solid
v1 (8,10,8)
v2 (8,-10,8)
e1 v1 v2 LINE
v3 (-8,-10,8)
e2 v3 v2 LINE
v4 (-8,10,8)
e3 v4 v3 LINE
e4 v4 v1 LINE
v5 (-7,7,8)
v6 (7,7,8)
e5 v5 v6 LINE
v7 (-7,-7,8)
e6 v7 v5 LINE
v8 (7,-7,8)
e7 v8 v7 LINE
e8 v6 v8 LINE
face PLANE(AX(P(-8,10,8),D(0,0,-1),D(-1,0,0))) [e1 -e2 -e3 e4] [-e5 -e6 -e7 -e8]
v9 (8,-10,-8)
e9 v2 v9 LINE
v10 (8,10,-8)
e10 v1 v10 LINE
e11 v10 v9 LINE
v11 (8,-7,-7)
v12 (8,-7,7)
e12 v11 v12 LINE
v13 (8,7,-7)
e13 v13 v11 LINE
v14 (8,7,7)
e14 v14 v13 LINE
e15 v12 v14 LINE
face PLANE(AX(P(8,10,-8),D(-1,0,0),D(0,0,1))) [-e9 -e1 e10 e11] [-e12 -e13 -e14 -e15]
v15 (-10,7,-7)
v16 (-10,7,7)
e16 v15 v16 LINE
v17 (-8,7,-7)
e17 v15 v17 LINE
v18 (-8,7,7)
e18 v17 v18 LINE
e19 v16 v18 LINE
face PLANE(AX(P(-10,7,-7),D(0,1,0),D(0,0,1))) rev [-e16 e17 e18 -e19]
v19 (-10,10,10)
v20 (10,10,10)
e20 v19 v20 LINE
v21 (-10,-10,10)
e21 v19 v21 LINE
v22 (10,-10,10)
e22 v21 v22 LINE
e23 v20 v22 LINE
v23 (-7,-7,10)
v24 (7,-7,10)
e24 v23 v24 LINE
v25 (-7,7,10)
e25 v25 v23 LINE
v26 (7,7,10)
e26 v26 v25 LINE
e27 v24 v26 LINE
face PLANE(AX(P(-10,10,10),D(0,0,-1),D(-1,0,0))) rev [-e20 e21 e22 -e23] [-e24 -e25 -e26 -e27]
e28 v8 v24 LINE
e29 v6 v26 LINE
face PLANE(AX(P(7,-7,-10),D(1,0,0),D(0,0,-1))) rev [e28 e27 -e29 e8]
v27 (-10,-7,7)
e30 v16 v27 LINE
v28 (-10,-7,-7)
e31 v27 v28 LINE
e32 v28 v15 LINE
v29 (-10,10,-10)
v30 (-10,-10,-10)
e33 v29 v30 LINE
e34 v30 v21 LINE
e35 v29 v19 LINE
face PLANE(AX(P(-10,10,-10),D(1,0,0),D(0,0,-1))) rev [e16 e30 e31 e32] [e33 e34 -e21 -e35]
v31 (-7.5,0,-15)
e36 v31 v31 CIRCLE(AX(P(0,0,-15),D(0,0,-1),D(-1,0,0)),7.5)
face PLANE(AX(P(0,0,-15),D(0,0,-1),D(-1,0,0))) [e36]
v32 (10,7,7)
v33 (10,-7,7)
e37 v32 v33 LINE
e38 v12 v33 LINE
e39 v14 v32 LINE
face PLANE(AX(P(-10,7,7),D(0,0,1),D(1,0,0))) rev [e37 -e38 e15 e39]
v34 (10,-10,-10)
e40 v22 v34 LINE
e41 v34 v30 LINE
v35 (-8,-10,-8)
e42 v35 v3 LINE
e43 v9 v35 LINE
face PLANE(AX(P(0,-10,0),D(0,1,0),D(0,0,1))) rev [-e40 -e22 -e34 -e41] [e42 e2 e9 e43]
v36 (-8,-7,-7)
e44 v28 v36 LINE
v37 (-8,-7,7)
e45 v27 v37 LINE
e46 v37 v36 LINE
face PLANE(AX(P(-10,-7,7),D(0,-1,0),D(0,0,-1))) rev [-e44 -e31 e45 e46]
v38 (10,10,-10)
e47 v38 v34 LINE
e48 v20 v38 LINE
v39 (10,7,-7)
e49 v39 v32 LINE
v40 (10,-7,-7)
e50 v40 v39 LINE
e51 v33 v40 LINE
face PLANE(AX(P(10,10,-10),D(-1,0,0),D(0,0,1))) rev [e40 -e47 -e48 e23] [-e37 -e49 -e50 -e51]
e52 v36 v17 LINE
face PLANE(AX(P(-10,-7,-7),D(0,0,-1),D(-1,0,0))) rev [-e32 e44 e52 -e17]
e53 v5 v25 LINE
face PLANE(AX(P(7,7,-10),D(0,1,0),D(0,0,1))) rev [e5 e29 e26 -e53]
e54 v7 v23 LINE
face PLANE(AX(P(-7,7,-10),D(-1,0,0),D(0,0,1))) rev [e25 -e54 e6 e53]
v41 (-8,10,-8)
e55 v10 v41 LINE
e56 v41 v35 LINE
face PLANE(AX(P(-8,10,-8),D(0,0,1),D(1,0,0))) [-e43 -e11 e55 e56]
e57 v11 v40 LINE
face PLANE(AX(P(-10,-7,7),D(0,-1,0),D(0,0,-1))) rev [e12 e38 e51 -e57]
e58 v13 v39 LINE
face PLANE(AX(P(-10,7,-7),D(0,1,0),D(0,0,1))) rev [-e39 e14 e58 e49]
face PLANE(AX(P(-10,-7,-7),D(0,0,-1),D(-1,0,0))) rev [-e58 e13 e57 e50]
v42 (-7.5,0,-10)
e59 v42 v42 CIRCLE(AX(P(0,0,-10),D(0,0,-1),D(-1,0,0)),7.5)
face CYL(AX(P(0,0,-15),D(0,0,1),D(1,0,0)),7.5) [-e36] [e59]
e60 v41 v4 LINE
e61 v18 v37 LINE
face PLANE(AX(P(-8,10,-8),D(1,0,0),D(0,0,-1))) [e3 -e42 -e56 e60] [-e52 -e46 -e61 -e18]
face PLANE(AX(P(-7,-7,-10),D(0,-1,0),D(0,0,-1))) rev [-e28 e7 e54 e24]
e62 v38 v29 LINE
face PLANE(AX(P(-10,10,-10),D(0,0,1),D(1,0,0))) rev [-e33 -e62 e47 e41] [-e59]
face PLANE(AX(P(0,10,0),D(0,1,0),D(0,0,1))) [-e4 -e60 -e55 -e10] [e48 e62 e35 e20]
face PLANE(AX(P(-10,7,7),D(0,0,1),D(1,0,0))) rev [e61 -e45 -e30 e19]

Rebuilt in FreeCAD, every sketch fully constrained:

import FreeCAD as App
import Part
import Sketcher
from FreeCAD import Vector
Q = App.Units.Quantity


def add_polygon(sketch, points):
    """Adds a closed chain of lines whose ends are joined by coincident constraints."""
    first, n = sketch.GeometryCount, len(points)
    for a, b in zip(points, points[1:] + points[:1]):
        sketch.addGeometry(Part.LineSegment(App.Vector(*a, 0), App.Vector(*b, 0)), False)
    for i in range(n):
        sketch.addConstraint(Sketcher.Constraint("Coincident", first + i, 2, first + (i + 1) % n, 1))

doc = App.newDocument("Part")
params = doc.addObject("Spreadsheet::Sheet", "Params")
for row, (alias, value) in enumerate([
    ("sketch1_width", "20 mm"),
    ("sketch1_width2", "16 mm"),
    ("pad1_length", "20 mm"),
    ("sketch2_width", "14 mm"),
    ("sketch3_width", "14 mm"),
    ("sketch4_width", "14 mm"),
    ("sketch4_height", "2 mm"),
    ("pad2_length", "14 mm"),
    ("sketch5_diameter", "15 mm"),
    ("pad3_length", "5 mm"),
], start=1):
    params.set(f"A{row}", alias)
    params.set(f"B{row}", "=" + value)
    params.setAlias(f"B{row}", alias)

body = doc.addObject("PartDesign::Body", "Body")

# Sketch on XZ plane
sketch1 = body.newObject("Sketcher::SketchObject", "Sketch")
sketch1.AttachmentSupport = (doc.getObject("XZ_Plane"), [""])
sketch1.MapMode = "FlatFace"
add_polygon(sketch1, [(-10, -10), (-10, 10), (10, 10), (10, -10)])  # lines 0-3
add_polygon(sketch1, [(8, 8), (-8, 8), (-8, -8), (8, -8)])  # lines 4-7
sketch1.addConstraint(Sketcher.Constraint("Vertical", 0))
sketch1.addConstraint(Sketcher.Constraint("Horizontal", 1))
sketch1.addConstraint(Sketcher.Constraint("Vertical", 2))
sketch1.addConstraint(Sketcher.Constraint("Horizontal", 3))
sketch1.addConstraint(Sketcher.Constraint("Horizontal", 4))
sketch1.addConstraint(Sketcher.Constraint("Vertical", 5))
sketch1.addConstraint(Sketcher.Constraint("Horizontal", 6))
sketch1.addConstraint(Sketcher.Constraint("Vertical", 7))
sketch1.addConstraint(Sketcher.Constraint("Symmetric", 0, 2, 2, 2, -1, 1))
sketch1.addConstraint(Sketcher.Constraint("Symmetric", 4, 2, 6, 2, -1, 1))
sketch1.addConstraint(Sketcher.Constraint("Equal", 3, 0))
sketch1.addConstraint(Sketcher.Constraint("Equal", 6, 5))
sketch1.addConstraint(Sketcher.Constraint("DistanceX", 1, 1, 1, 2, Q("20 mm")))
sketch1.addConstraint(Sketcher.Constraint("DistanceX", 4, 2, 4, 1, Q("16 mm")))
sketch1.setExpression("Constraints[20]", "Params.sketch1_width")
sketch1.setExpression("Constraints[21]", "Params.sketch1_width2")
pad1 = body.newObject("PartDesign::Pad", "Pad")
pad1.Profile = sketch1
pad1.setExpression("Length", "Params.pad1_length")
pad1.Midplane = True

# Sketch on XY plane
sketch2 = body.newObject("Sketcher::SketchObject", "Sketch001")
sketch2.AttachmentSupport = (doc.getObject("XY_Plane"), [""])
sketch2.MapMode = "FlatFace"
sketch2.AttachmentOffset = App.Placement(Vector(0, 0, 10), App.Rotation())
add_polygon(sketch2, [(-7, 7), (-7, -7), (7, -7), (7, 7)])  # lines 0-3
sketch2.addConstraint(Sketcher.Constraint("Vertical", 0))
sketch2.addConstraint(Sketcher.Constraint("Horizontal", 1))
sketch2.addConstraint(Sketcher.Constraint("Vertical", 2))
sketch2.addConstraint(Sketcher.Constraint("Horizontal", 3))
sketch2.addConstraint(Sketcher.Constraint("Symmetric", 0, 2, 2, 2, -1, 1))
sketch2.addConstraint(Sketcher.Constraint("Equal", 3, 0))
sketch2.addConstraint(Sketcher.Constraint("DistanceX", 1, 1, 1, 2, Q("14 mm")))
sketch2.setExpression("Constraints[10]", "Params.sketch2_width")
pocket1 = body.newObject("PartDesign::Pocket", "Pocket")
pocket1.Profile = sketch2
pocket1.Type = "ThroughAll"

# Sketch on YZ plane
sketch3 = body.newObject("Sketcher::SketchObject", "Sketch002")
sketch3.AttachmentSupport = (doc.getObject("YZ_Plane"), [""])
sketch3.MapMode = "FlatFace"
sketch3.AttachmentOffset = App.Placement(Vector(0, 0, 10), App.Rotation())
add_polygon(sketch3, [(7, 7), (-7, 7), (-7, -7), (7, -7)])  # lines 0-3
sketch3.addConstraint(Sketcher.Constraint("Horizontal", 0))
sketch3.addConstraint(Sketcher.Constraint("Vertical", 1))
sketch3.addConstraint(Sketcher.Constraint("Horizontal", 2))
sketch3.addConstraint(Sketcher.Constraint("Vertical", 3))
sketch3.addConstraint(Sketcher.Constraint("Symmetric", 0, 2, 2, 2, -1, 1))
sketch3.addConstraint(Sketcher.Constraint("Equal", 2, 1))
sketch3.addConstraint(Sketcher.Constraint("DistanceX", 0, 2, 0, 1, Q("14 mm")))
sketch3.setExpression("Constraints[10]", "Params.sketch3_width")
pocket2 = body.newObject("PartDesign::Pocket", "Pocket001")
pocket2.Profile = sketch3
pocket2.Type = "ThroughAll"

# Sketch on YZ plane
sketch4 = body.newObject("Sketcher::SketchObject", "Sketch003")
sketch4.AttachmentSupport = (doc.getObject("YZ_Plane"), [""])
sketch4.MapMode = "FlatFace"
sketch4.AttachmentOffset = App.Placement(Vector(0, 0, -7), App.Rotation())
add_polygon(sketch4, [(7, -8), (-7, -8), (-7, -10), (7, -10)])  # lines 0-3
sketch4.addConstraint(Sketcher.Constraint("Horizontal", 0))
sketch4.addConstraint(Sketcher.Constraint("Vertical", 1))
sketch4.addConstraint(Sketcher.Constraint("Horizontal", 2))
sketch4.addConstraint(Sketcher.Constraint("Vertical", 3))
sketch4.addConstraint(Sketcher.Constraint("DistanceX", 0, 2, 0, 1, Q("14 mm")))
sketch4.addConstraint(Sketcher.Constraint("DistanceY", 1, 2, 1, 1, Q("2 mm")))
sketch4.addConstraint(Sketcher.Constraint("DistanceX", 0, 2, -1, 1, Q("7 mm")))
sketch4.addConstraint(Sketcher.Constraint("DistanceY", 0, 2, -1, 1, Q("8 mm")))
sketch4.setExpression("Constraints[8]", "Params.sketch4_width")
sketch4.setExpression("Constraints[9]", "Params.sketch4_height")
pad2 = body.newObject("PartDesign::Pad", "Pad001")
pad2.Profile = sketch4
pad2.setExpression("Length", "Params.pad2_length")

# Sketch on XY plane
sketch5 = body.newObject("Sketcher::SketchObject", "Sketch004")
sketch5.AttachmentSupport = (doc.getObject("XY_Plane"), [""])
sketch5.MapMode = "FlatFace"
sketch5.AttachmentOffset = App.Placement(Vector(0, 0, -10), App.Rotation())
sketch5.addGeometry(Part.Circle(Vector(0, 0, 0), Vector(0, 0, 1), 7.5), False)
sketch5.addConstraint(Sketcher.Constraint("Coincident", 0, 3, -1, 1))
sketch5.addConstraint(Sketcher.Constraint("Diameter", 0, Q("15 mm")))
sketch5.setExpression("Constraints[1]", "Params.sketch5_diameter")
pad3 = body.newObject("PartDesign::Pad", "Pad002")
pad3.Profile = sketch5
pad3.setExpression("Length", "Params.pad3_length")
pad3.Reversed = True

doc.recompute()
